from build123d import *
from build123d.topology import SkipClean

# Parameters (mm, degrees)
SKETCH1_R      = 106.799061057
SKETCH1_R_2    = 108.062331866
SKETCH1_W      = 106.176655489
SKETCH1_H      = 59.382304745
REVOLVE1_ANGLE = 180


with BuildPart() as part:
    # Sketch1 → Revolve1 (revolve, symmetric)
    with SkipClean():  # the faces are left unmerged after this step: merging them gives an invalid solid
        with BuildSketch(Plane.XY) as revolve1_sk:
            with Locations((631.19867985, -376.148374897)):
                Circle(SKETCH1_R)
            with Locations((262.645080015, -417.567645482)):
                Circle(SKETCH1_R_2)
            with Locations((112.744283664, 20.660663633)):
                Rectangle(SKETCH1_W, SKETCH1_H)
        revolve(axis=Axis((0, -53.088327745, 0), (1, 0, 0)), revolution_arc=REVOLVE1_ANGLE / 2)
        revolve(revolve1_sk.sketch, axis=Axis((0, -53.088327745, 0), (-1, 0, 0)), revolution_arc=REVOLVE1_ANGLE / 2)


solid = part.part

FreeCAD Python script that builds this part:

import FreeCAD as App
import Part
import Sketcher
from FreeCAD import Vector
Q = App.Units.Quantity

doc = App.newDocument("Part")
body = doc.addObject("PartDesign::Body", "Body")
body.AllowCompound = True

# Sketch on XY plane
sketch1 = body.newObject("Sketcher::SketchObject", "Sketch")
sketch1.AttachmentSupport = (doc.getObject("XY_Plane"), [""])
sketch1.MapMode = "FlatFace"
sketch1.addGeometry([
    Part.Circle(Vector(631, -376, 0), Vector(0, 0, 1), 107),  # 0
    Part.Circle(Vector(263, -418, 0), Vector(0, 0, 1), 108),  # 1
    Part.LineSegment(Vector(60, 50, 0), Vector(60, -9, 0)),  # 2
    Part.LineSegment(Vector(60, -9, 0), Vector(166, -9, 0)),  # 3
    Part.LineSegment(Vector(166, -9, 0), Vector(166, 50, 0)),  # 4
    Part.LineSegment(Vector(166, 50, 0), Vector(60, 50, 0)),  # 5
], False)
sketch1.addGeometry(Part.LineSegment(Vector(60, -53, 0), Vector(631, -53, 0)), True)  # axis
sketch1.addConstraint([
    Sketcher.Constraint("Coincident", 2, 2, 3, 1),
    Sketcher.Constraint("Coincident", 3, 2, 4, 1),
    Sketcher.Constraint("Coincident", 4, 2, 5, 1),
    Sketcher.Constraint("Coincident", 5, 2, 2, 1),
    Sketcher.Constraint("Vertical", 2),
    Sketcher.Constraint("Horizontal", 3),
    Sketcher.Constraint("Vertical", 4),
    Sketcher.Constraint("Horizontal", 5),
    Sketcher.Constraint("Horizontal", 6),
    Sketcher.Constraint("Vertical", 5, 2, 6, 1),
    Sketcher.Constraint("Vertical", 0, 3, 6, 2),
    Sketcher.Constraint("Diameter", 0, Q("213.598122 mm")),
    Sketcher.Constraint("Diameter", 1, Q("216.124664 mm")),
    Sketcher.Constraint("DistanceX", 1, 3, 0, 3, Q("368.5536 mm")),
    Sketcher.Constraint("DistanceX", 3, 1, 3, 2, Q("106.176655 mm")),
    Sketcher.Constraint("DistanceX", 6, 1, 6, 2, Q("571.542724 mm")),
    Sketcher.Constraint("DistanceY", 2, 2, 2, 1, Q("59.382305 mm")),
    Sketcher.Constraint("DistanceX", -1, 1, 0, 3, Q("631.19868 mm")),
    Sketcher.Constraint("DistanceY", 2, 2, -1, 1, Q("9.030489 mm")),
    Sketcher.Constraint("DistanceY", 1, 3, 0, 3, Q("41.419271 mm")),
    Sketcher.Constraint("DistanceY", 1, 3, 4, 2, Q("467.919461 mm")),
    Sketcher.Constraint("DistanceY", 6, 1, 2, 2, Q("44.057839 mm")),
])
revolution = body.newObject("PartDesign::Revolution", "Revolution")
revolution.Profile = sketch1
revolution.ReferenceAxis = (sketch1, ["Axis0"])
revolution.Angle = 90

# Sketch on XY plane
sketch2 = body.newObject("Sketcher::SketchObject", "Sketch001")
sketch2.AttachmentSupport = (doc.getObject("XY_Plane"), [""])
sketch2.MapMode = "FlatFace"
sketch2.addGeometry([
    Part.Circle(Vector(631, -376, 0), Vector(0, 0, 1), 107),  # 0
    Part.Circle(Vector(263, -418, 0), Vector(0, 0, 1), 108),  # 1
    Part.LineSegment(Vector(60, 50, 0), Vector(60, -9, 0)),  # 2
    Part.LineSegment(Vector(60, -9, 0), Vector(166, -9, 0)),  # 3
    Part.LineSegment(Vector(166, -9, 0), Vector(166, 50, 0)),  # 4
    Part.LineSegment(Vector(166, 50, 0), Vector(60, 50, 0)),  # 5
], False)
sketch2.addGeometry(Part.LineSegment(Vector(631, -53, 0), Vector(60, -53, 0)), True)  # axis
sketch2.addConstraint([
    Sketcher.Constraint("Coincident", 2, 2, 3, 1),
    Sketcher.Constraint("Coincident", 3, 2, 4, 1),
    Sketcher.Constraint("Coincident", 4, 2, 5, 1),
    Sketcher.Constraint("Coincident", 5, 2, 2, 1),
    Sketcher.Constraint("Vertical", 2),
    Sketcher.Constraint("Horizontal", 3),
    Sketcher.Constraint("Vertical", 4),
    Sketcher.Constraint("Horizontal", 5),
    Sketcher.Constraint("Horizontal", 6),
    Sketcher.Constraint("Vertical", 0, 3, 6, 1),
    Sketcher.Constraint("Vertical", 5, 2, 6, 2),
    Sketcher.Constraint("Diameter", 0, Q("213.598122 mm")),
    Sketcher.Constraint("Diameter", 1, Q("216.124664 mm")),
    Sketcher.Constraint("DistanceX", 1, 3, 0, 3, Q("368.5536 mm")),
    Sketcher.Constraint("DistanceX", 3, 1, 3, 2, Q("106.176655 mm")),
    Sketcher.Constraint("DistanceX", 6, 2, 6, 1, Q("571.542724 mm")),
    Sketcher.Constraint("DistanceY", 2, 2, 2, 1, Q("59.382305 mm")),
    Sketcher.Constraint("DistanceX", -1, 1, 0, 3, Q("631.19868 mm")),
    Sketcher.Constraint("DistanceY", 2, 2, -1, 1, Q("9.030489 mm")),
    Sketcher.Constraint("DistanceY", 1, 3, 0, 3, Q("41.419271 mm")),
    Sketcher.Constraint("DistanceY", 1, 3, 4, 2, Q("467.919461 mm")),
    Sketcher.Constraint("DistanceY", 6, 1, 3, 2, Q("44.057839 mm")),
])
revolution2 = body.newObject("PartDesign::Revolution", "Revolution001")
revolution2.Profile = sketch2
revolution2.ReferenceAxis = (sketch2, ["Axis0"])
revolution2.Angle = 90

doc.recompute()
